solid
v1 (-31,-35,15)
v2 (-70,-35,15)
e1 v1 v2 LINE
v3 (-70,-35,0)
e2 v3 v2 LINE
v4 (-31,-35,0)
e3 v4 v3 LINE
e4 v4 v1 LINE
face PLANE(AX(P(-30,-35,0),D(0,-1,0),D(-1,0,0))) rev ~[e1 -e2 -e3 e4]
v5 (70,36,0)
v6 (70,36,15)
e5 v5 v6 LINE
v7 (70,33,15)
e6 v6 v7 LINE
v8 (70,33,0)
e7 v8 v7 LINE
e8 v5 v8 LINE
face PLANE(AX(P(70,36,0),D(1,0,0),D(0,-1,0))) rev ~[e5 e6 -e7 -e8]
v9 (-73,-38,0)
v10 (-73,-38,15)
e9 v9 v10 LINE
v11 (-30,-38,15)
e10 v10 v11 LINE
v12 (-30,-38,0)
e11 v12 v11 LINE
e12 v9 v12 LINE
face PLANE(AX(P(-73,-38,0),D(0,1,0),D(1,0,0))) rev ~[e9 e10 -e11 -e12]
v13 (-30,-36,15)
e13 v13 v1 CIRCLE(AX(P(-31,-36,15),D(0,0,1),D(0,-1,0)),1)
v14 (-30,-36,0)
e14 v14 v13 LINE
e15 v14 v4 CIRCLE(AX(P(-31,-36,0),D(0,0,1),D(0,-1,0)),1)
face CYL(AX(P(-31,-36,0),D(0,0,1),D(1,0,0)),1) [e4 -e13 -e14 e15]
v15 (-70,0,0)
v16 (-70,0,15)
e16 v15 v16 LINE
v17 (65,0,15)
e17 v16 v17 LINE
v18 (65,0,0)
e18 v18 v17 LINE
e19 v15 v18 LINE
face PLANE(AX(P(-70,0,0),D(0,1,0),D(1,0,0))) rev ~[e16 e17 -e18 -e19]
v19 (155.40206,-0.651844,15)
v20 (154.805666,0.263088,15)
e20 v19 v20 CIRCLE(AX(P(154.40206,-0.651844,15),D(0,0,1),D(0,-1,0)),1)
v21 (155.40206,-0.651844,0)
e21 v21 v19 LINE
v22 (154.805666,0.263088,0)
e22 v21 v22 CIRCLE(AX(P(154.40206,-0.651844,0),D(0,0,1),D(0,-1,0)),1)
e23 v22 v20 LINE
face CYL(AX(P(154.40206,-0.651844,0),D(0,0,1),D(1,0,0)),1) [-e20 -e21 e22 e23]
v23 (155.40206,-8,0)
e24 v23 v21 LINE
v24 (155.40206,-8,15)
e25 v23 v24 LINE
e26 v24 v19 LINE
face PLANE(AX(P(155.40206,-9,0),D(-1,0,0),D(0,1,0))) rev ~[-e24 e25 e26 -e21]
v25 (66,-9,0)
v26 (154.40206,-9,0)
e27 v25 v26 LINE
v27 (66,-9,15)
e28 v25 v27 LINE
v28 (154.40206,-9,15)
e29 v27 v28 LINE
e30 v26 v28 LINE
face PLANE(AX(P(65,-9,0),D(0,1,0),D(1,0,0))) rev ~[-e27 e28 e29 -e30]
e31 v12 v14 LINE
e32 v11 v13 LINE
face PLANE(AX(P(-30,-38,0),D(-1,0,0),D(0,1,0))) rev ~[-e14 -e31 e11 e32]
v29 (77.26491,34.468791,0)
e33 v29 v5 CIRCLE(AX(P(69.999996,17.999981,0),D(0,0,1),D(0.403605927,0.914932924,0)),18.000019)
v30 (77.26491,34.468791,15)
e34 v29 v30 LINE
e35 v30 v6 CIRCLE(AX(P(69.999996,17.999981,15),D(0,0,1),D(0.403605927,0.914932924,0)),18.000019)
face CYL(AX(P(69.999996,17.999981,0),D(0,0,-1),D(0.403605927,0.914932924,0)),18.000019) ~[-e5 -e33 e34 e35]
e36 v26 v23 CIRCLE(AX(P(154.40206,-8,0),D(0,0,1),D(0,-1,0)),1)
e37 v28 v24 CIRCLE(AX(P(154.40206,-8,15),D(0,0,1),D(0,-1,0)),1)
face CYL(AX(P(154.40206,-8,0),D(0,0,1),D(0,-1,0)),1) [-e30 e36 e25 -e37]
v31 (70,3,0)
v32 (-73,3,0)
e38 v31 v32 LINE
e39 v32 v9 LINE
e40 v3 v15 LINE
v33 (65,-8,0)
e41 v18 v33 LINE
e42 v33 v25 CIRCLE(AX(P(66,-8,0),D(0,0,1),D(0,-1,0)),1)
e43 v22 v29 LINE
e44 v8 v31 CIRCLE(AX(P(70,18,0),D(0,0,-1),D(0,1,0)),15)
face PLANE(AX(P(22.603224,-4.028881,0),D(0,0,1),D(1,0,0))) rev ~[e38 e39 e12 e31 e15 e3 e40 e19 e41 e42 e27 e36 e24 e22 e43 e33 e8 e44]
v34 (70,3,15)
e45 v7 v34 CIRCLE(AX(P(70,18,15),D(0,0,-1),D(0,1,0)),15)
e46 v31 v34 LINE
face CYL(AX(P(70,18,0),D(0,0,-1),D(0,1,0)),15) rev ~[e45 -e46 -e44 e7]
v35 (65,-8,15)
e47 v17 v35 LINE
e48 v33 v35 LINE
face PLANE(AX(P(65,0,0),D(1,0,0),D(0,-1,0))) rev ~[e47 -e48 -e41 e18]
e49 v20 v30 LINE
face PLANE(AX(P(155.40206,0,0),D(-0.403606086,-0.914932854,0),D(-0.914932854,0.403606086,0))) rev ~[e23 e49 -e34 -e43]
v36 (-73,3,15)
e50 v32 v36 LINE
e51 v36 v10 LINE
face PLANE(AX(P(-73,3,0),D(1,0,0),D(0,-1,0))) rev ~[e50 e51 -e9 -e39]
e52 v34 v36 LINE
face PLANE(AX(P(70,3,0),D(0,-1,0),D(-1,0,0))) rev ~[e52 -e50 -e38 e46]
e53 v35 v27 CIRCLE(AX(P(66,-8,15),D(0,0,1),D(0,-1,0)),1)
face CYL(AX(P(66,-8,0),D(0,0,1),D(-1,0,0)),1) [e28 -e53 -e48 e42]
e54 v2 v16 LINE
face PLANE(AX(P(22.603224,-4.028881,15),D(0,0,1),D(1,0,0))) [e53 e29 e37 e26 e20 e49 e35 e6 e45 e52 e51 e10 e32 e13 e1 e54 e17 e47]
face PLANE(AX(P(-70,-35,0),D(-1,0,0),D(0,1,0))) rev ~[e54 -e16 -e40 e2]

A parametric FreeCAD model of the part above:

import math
import FreeCAD as App
import Part
import Sketcher
Q = App.Units.Quantity


def edges_at(feature, points):
    """Names of the edges that pass closest to the given points."""
    edges = feature.Shape.Edges
    near = lambda p: min(range(len(edges)), key=lambda i: edges[i].distToShape(Part.Vertex(*p))[0])
    return sorted({f"Edge{near(p) + 1}" for p in points})

doc = App.newDocument("Part")
body = doc.addObject("PartDesign::Body", "Body")

sketch1 = doc.addObject("Sketcher::SketchObject", "Sketch")
body.addObject(sketch1)
sketch1.AttachmentSupport = (doc.XY_Plane, [""])
sketch1.MapMode = "FlatFace"
sketch1.addGeometry([
    Part.LineSegment(App.Vector(-70, -35, 0), App.Vector(-70, 0, 0)),
    Part.LineSegment(App.Vector(-70, 0, 0), App.Vector(65, 0, 0)),
    Part.LineSegment(App.Vector(65, 0, 0), App.Vector(65, -9, 0)),
    Part.LineSegment(App.Vector(65, -9, 0), App.Vector(155.40206, -9, 0)),
    Part.LineSegment(App.Vector(155.40206, -9, 0), App.Vector(155.40206, 0, 0)),
    Part.LineSegment(App.Vector(155.40206, 0, 0), App.Vector(77.26491, 34.468791, 0)),
    Part.ArcOfCircle(Part.Circle(App.Vector(69.999996, 17.999981, 0), App.Vector(0, 0, 1), 18.000019), math.radians(66.196203), math.radians(89.999986)),
    Part.LineSegment(App.Vector(70, 36, 0), App.Vector(70, 33, 0)),
    Part.ArcOfCircle(Part.Circle(App.Vector(70, 18, 0), App.Vector(0, 0, 1), 15), math.radians(-90), math.radians(90)),
    Part.LineSegment(App.Vector(70, 3, 0), App.Vector(-73, 3, 0)),
    Part.LineSegment(App.Vector(-73, 3, 0), App.Vector(-73, -38, 0)),
    Part.LineSegment(App.Vector(-73, -38, 0), App.Vector(-30, -38, 0)),
    Part.LineSegment(App.Vector(-30, -38, 0), App.Vector(-30, -35, 0)),
    Part.LineSegment(App.Vector(-30, -35, 0), App.Vector(-70, -35, 0)),
], False)
sketch1.addConstraint([
    Sketcher.Constraint("Coincident", 0, 2, 1, 1),
    Sketcher.Constraint("Coincident", 1, 2, 2, 1),
    Sketcher.Constraint("Coincident", 2, 2, 3, 1),
    Sketcher.Constraint("Coincident", 3, 2, 4, 1),
    Sketcher.Constraint("Coincident", 4, 2, 5, 1),
    Sketcher.Constraint("Tangent", 5, 2, 6, 1),
    Sketcher.Constraint("Coincident", 6, 2, 7, 1),
    Sketcher.Constraint("Coincident", 7, 2, 8, 2),
    Sketcher.Constraint("Tangent", 8, 1, 9, 1),
    Sketcher.Constraint("Coincident", 9, 2, 10, 1),
    Sketcher.Constraint("Coincident", 10, 2, 11, 1),
    Sketcher.Constraint("Coincident", 11, 2, 12, 1),
    Sketcher.Constraint("Coincident", 12, 2, 13, 1),
    Sketcher.Constraint("Coincident", 13, 2, 0, 1),
    Sketcher.Constraint("Vertical", 0),
    Sketcher.Constraint("Horizontal", 1),
    Sketcher.Constraint("Vertical", 2),
    Sketcher.Constraint("Horizontal", 3),
    Sketcher.Constraint("Vertical", 4),
    Sketcher.Constraint("Vertical", 7),
    Sketcher.Constraint("Horizontal", 9),
    Sketcher.Constraint("Vertical", 10),
    Sketcher.Constraint("Horizontal", 11),
    Sketcher.Constraint("Vertical", 12),
    Sketcher.Constraint("Horizontal", 13),
    Sketcher.Constraint("PointOnObject", 0, 2, -1),
    Sketcher.Constraint("PointOnObject", 4, 2, -1),
    Sketcher.Constraint("Vertical", 8, 3, 6, 2),
    Sketcher.Constraint("Equal", 7, 12),
    Sketcher.Constraint("Radius", 8, Q("15 mm")),
    Sketcher.Constraint("DistanceX", 1, 1, 1, 2, Q("135 mm")),
    Sketcher.Constraint("DistanceX", 9, 2, 9, 1, Q("143 mm")),
    Sketcher.Constraint("DistanceX", 11, 1, 11, 2, Q("43 mm")),
    Sketcher.Constraint("DistanceX", 13, 2, 13, 1, Q("40 mm")),
    Sketcher.Constraint("DistanceY", 0, 1, 0, 2, Q("35 mm")),
    Sketcher.Constraint("DistanceY", 2, 2, 2, 1, Q("9 mm")),
    Sketcher.Constraint("DistanceY", 7, 2, 7, 1, Q("3 mm")),
    Sketcher.Constraint("DistanceY", 10, 2, 10, 1, Q("41 mm")),
    Sketcher.Constraint("DistanceX", -1, 1, 8, 3, Q("70 mm")),
    Sketcher.Constraint("Radius", 6, Q("18.000019 mm")),
    Sketcher.Constraint("DistanceX", 3, 1, 3, 2, Q("90.40206 mm")),
    Sketcher.Constraint("Distance", 5, Q("85.402059 mm")),
])
pad1 = doc.addObject("PartDesign::Pad", "Pad")
body.addObject(pad1)
pad1.Profile = sketch1
pad1.Length = 15
doc.recompute()

fillet = doc.addObject("PartDesign::Fillet", "Fillet")
body.addObject(fillet)
fillet.Base = (pad1, edges_at(pad1, [
    (65, -9, 7.5),
    (155.402, -9, 7.5),
    (155.402, 0, 7.5),
    (-30, -35, 7.5),
]))
fillet.Radius = 1

doc.recompute()
